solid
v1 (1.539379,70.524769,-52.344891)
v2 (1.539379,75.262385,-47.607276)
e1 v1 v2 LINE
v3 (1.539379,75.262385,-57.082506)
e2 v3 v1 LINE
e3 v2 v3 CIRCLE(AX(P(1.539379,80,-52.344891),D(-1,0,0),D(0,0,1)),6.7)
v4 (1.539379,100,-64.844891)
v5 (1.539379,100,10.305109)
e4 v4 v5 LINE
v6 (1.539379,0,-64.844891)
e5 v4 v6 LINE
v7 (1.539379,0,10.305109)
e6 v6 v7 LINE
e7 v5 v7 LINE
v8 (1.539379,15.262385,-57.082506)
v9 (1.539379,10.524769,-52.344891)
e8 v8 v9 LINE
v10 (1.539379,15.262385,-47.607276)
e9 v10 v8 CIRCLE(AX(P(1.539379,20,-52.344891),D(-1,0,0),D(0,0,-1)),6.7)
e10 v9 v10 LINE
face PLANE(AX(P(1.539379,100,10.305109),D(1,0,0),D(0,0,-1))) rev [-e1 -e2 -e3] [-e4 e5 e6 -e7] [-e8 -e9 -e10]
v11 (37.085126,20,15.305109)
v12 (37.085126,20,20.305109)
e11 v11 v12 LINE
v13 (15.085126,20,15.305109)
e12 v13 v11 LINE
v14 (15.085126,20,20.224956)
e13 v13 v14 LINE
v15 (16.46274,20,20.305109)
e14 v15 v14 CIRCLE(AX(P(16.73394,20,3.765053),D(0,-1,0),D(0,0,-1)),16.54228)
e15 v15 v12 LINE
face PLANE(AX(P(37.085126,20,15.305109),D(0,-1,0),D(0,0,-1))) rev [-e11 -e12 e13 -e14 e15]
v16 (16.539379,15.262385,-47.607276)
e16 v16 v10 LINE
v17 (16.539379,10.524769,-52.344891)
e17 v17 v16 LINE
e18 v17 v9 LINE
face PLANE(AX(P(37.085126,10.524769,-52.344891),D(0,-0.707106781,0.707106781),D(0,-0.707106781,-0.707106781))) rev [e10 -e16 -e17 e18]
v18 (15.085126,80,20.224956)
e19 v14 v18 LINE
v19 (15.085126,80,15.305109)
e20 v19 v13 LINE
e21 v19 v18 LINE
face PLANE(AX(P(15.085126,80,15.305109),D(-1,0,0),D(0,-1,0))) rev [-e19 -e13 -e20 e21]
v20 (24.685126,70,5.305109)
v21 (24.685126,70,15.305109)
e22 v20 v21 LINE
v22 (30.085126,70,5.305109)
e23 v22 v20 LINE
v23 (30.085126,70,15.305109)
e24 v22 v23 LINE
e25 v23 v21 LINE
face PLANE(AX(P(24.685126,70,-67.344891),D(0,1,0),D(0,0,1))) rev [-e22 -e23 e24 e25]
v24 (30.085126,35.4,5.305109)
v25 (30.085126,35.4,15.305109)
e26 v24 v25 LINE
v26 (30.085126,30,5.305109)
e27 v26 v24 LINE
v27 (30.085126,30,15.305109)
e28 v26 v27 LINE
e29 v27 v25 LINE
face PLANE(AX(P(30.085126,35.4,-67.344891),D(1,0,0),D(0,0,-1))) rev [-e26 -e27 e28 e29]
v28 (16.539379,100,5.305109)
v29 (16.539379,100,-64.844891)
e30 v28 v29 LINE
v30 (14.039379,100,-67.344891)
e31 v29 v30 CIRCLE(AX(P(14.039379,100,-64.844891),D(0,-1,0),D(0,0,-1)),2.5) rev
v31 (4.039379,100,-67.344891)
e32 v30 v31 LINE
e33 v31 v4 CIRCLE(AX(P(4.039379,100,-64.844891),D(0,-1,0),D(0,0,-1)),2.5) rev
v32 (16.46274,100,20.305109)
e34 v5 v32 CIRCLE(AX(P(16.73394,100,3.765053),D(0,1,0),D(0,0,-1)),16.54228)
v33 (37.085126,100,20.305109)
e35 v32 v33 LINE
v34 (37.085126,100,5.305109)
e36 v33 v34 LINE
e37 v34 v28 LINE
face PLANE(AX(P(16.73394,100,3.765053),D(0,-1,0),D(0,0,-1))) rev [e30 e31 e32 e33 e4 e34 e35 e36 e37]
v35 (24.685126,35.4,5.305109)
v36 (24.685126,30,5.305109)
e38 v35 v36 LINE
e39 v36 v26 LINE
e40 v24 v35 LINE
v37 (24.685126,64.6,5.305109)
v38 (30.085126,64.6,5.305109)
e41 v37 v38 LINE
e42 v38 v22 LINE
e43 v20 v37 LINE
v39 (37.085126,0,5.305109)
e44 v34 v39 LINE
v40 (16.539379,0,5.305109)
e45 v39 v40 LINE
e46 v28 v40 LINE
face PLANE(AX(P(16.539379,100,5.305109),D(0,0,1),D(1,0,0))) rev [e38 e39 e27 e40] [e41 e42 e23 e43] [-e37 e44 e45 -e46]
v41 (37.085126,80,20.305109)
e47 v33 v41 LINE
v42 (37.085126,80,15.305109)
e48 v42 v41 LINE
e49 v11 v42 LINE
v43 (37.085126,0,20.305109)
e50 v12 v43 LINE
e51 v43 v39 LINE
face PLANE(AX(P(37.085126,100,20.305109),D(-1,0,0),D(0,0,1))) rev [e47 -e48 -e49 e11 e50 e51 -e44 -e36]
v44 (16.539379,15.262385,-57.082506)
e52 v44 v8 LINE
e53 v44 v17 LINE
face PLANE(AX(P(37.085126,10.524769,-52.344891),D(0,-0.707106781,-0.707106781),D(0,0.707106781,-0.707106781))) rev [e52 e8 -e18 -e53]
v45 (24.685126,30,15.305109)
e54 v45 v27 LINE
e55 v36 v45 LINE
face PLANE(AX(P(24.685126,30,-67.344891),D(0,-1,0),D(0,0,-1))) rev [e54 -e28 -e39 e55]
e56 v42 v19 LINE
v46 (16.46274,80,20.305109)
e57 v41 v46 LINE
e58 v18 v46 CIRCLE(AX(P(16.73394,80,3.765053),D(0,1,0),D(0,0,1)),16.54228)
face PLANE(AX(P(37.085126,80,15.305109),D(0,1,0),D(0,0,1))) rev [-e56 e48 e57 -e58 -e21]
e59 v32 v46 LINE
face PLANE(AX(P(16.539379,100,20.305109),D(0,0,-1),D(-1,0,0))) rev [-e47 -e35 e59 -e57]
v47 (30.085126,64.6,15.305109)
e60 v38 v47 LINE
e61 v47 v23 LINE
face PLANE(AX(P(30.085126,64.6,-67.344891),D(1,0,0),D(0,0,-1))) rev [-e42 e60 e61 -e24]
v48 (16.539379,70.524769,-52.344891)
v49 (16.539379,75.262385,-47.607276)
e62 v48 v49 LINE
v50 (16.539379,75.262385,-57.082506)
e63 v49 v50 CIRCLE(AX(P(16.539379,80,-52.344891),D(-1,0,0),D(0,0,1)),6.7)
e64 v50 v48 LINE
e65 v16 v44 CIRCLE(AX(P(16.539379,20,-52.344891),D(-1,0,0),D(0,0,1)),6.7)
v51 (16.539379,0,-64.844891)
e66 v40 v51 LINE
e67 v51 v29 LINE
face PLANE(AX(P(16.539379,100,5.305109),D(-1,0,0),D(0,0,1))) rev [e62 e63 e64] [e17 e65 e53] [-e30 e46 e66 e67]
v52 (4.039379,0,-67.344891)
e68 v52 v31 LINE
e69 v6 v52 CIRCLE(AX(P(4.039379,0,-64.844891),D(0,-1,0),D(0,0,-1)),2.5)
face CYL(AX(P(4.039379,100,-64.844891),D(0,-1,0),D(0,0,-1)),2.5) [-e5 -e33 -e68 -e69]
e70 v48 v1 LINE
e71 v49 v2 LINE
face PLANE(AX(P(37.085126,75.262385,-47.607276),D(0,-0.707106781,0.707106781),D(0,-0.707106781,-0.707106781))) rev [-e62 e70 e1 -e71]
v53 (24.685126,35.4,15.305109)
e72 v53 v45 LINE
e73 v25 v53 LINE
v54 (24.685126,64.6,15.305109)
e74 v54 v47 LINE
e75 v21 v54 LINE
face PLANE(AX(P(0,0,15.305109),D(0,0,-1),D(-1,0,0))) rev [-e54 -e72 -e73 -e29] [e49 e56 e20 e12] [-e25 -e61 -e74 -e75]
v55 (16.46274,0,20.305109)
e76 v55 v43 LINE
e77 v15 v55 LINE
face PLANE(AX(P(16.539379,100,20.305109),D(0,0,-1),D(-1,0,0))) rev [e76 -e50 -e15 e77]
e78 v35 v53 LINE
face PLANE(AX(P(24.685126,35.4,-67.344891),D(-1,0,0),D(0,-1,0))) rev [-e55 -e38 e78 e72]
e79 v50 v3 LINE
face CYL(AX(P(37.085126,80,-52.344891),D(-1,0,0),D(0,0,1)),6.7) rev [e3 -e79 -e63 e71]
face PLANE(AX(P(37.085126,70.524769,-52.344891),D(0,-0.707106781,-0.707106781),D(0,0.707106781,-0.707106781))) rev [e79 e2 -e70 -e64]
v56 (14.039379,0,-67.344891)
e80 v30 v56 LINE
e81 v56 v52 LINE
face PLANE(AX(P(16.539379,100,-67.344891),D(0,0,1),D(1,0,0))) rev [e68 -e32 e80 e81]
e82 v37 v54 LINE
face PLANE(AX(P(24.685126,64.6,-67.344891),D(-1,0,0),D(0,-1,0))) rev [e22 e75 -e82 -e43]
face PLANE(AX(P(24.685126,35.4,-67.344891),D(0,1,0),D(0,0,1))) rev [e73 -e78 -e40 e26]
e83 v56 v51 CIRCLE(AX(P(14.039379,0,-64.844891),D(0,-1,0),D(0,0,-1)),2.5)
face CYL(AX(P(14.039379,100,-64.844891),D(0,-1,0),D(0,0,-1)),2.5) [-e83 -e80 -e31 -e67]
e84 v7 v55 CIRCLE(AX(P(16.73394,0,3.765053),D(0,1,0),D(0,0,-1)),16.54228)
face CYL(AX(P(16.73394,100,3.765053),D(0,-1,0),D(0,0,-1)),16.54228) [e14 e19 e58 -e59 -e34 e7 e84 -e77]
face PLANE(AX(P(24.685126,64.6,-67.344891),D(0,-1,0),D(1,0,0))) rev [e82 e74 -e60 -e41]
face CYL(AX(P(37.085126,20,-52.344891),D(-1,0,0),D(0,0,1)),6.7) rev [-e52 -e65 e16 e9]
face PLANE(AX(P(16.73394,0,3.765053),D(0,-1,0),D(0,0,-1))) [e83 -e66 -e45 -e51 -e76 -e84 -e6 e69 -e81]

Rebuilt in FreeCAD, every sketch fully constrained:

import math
import FreeCAD as App
import Part
import Sketcher

V = App.Vector
Q = App.Units.Quantity


def edges_at(feature, points):
    """Names of the edges that pass closest to the given points."""
    edges = feature.Shape.Edges
    near = lambda p: min(range(len(edges)), key=lambda i: edges[i].distToShape(Part.Vertex(*p))[0])
    return sorted({f"Edge{near(p) + 1}" for p in points})


def add_polygon(sketch, points):
    """Adds a closed chain of lines whose ends are joined by coincident constraints."""
    first, n = sketch.GeometryCount, len(points)
    for a, b in zip(points, points[1:] + points[:1]):
        sketch.addGeometry(Part.LineSegment(App.Vector(*a, 0), App.Vector(*b, 0)), False)
    for i in range(n):
        sketch.addConstraint(Sketcher.Constraint("Coincident", first + i, 2, first + (i + 1) % n, 1))

doc = App.newDocument("Part")
params = doc.addObject("Spreadsheet::Sheet", "Params")
for row, (alias, value) in enumerate([
    ("sketch1_width", "15 mm"),
    ("sketch1_height", "72.65 mm"),
    ("pad1_length", "100 mm"),
    ("sketch2_radius", "6.7 mm"),
    ("sketch3_width", "5.4 mm"),
    ("sketch4_width", "22 mm"),
    ("sketch4_height", "60 mm"),
    ("pocket3_length", "5 mm"),
    ("fillet_radius", "2.5 mm"),
], start=1):
    params.set(f"A{row}", alias)
    params.set(f"B{row}", "=" + value)
    params.setAlias(f"B{row}", alias)

body = doc.addObject("PartDesign::Body", "Body")

# Sketch on XZ plane
sketch1 = doc.addObject("Sketcher::SketchObject", "Sketch")
body.addObject(sketch1)
sketch1.AttachmentSupport = (doc.XZ_Plane, [""])
sketch1.MapMode = "FlatFace"
sketch1.addGeometry([
    Part.ArcOfCircle(Part.Circle(V(17, 4, 0), V(0, 0, 1), 17), math.radians(91), math.radians(157)),  # 0
    Part.LineSegment(V(16, 20, 0), V(37, 20, 0)),  # 1
    Part.LineSegment(V(37, 20, 0), V(37, 5, 0)),  # 2
    Part.LineSegment(V(37, 5, 0), V(17, 5, 0)),  # 3
    Part.LineSegment(V(17, 5, 0), V(17, -67, 0)),  # 4
    Part.LineSegment(V(17, -67, 0), V(2, -67, 0)),  # 5
    Part.LineSegment(V(2, -67, 0), V(2, 10, 0)),  # 6
], False)
sketch1.addConstraint([
    Sketcher.Constraint("Coincident", 0, 1, 1, 1),
    Sketcher.Constraint("Coincident", 1, 2, 2, 1),
    Sketcher.Constraint("Coincident", 2, 2, 3, 1),
    Sketcher.Constraint("Coincident", 3, 2, 4, 1),
    Sketcher.Constraint("Coincident", 4, 2, 5, 1),
    Sketcher.Constraint("Coincident", 5, 2, 6, 1),
    Sketcher.Constraint("Coincident", 6, 2, 0, 2),
    Sketcher.Constraint("Horizontal", 1),
    Sketcher.Constraint("Vertical", 2),
    Sketcher.Constraint("Horizontal", 3),
    Sketcher.Constraint("Vertical", 4),
    Sketcher.Constraint("Horizontal", 5),
    Sketcher.Constraint("Vertical", 6),
    Sketcher.Constraint("Equal", 5, 2),
    Sketcher.Constraint("DistanceX", 5, 2, 5, 1, Q("15 mm")),
    Sketcher.Constraint("DistanceY", 3, 2, 6, 2, Q("5 mm")),
    Sketcher.Constraint("DistanceY", 4, 2, 4, 1, Q("72.65 mm")),
    Sketcher.Constraint("Radius", 0, Q("16.54228 mm")),
    Sketcher.Constraint("DistanceX", 0, 1, 0, 3, Q("0.2712 mm")),
    Sketcher.Constraint("DistanceX", 1, 1, 1, 2, Q("20.622386 mm")),
    Sketcher.Constraint("DistanceX", -1, 1, 0, 3, Q("16.73394 mm")),
    Sketcher.Constraint("DistanceY", -1, 1, 0, 1, Q("20.305109 mm")),
])
sketch1.setExpression("Constraints[14]", "Params.sketch1_width")
sketch1.setExpression("Constraints[16]", "Params.sketch1_height")
pad1 = doc.addObject("PartDesign::Pad", "Pad")
body.addObject(pad1)
pad1.Profile = sketch1
pad1.setExpression("Length", "Params.pad1_length")
pad1.Reversed = True

# Sketch on YZ plane
sketch2 = doc.addObject("Sketcher::SketchObject", "Sketch001")
body.addObject(sketch2)
sketch2.AttachmentSupport = (doc.YZ_Plane, [""])
sketch2.MapMode = "FlatFace"
sketch2.AttachmentOffset = App.Placement(V(0, 0, 1.539379), App.Rotation())
sketch2.addGeometry([
    Part.LineSegment(V(71, -52, 0), V(75, -48, 0)),  # 0
    Part.ArcOfCircle(Part.Circle(V(80, -52, 0), V(0, 0, 1), 7), math.radians(-135), math.radians(135)),  # 1
    Part.LineSegment(V(75, -57, 0), V(71, -52, 0)),  # 2
    Part.LineSegment(V(11, -52, 0), V(15, -48, 0)),  # 3
    Part.ArcOfCircle(Part.Circle(V(20, -52, 0), V(0, 0, 1), 7), math.radians(-135), math.radians(135)),  # 4
    Part.LineSegment(V(15, -57, 0), V(11, -52, 0)),  # 5
], False)
sketch2.addConstraint([
    Sketcher.Constraint("Tangent", 0, 2, 1, 2),
    Sketcher.Constraint("Tangent", 1, 1, 2, 1),
    Sketcher.Constraint("Coincident", 2, 2, 0, 1),
    Sketcher.Constraint("Tangent", 3, 2, 4, 2),
    Sketcher.Constraint("Tangent", 4, 1, 5, 1),
    Sketcher.Constraint("Coincident", 5, 2, 3, 1),
    Sketcher.Constraint("Equal", 1, 4),
    Sketcher.Constraint("Perpendicular", 0, 2),
    Sketcher.Constraint("Perpendicular", 2, 3),
    Sketcher.Constraint("Perpendicular", 3, 5),
    Sketcher.Constraint("Horizontal", 1, 3, 4, 3),
    Sketcher.Constraint("Horizontal", 4, 3, 2, 2),
    Sketcher.Constraint("Radius", 1, Q("6.7 mm")),
    Sketcher.Constraint("DistanceX", -1, 1, 1, 3, Q("80 mm")),
    Sketcher.Constraint("DistanceX", -1, 1, 4, 3, Q("20 mm")),
    Sketcher.Constraint("DistanceY", 1, 3, -1, 1, Q("52.344891 mm")),
])
sketch2.setExpression("Constraints[12]", "Params.sketch2_radius")
pocket1 = doc.addObject("PartDesign::Pocket", "Pocket")
body.addObject(pocket1)
pocket1.Profile = sketch2
pocket1.Type = "ThroughAll"
pocket1.Reversed = True

# Sketch on XY plane
sketch3 = doc.addObject("Sketcher::SketchObject", "Sketch002")
body.addObject(sketch3)
sketch3.AttachmentSupport = (doc.XY_Plane, [""])
sketch3.MapMode = "FlatFace"
sketch3.AttachmentOffset = App.Placement(V(0, 0, 20.305109), App.Rotation())
add_polygon(sketch3, [(25, 35), (25, 30), (30, 30), (30, 35)])  # lines 0-3
add_polygon(sketch3, [(25, 70), (25, 65), (30, 65), (30, 70)])  # lines 4-7
sketch3.addConstraint([
    Sketcher.Constraint("Vertical", 0),
    Sketcher.Constraint("Horizontal", 1),
    Sketcher.Constraint("Vertical", 2),
    Sketcher.Constraint("Horizontal", 3),
    Sketcher.Constraint("Vertical", 4),
    Sketcher.Constraint("Horizontal", 5),
    Sketcher.Constraint("Vertical", 6),
    Sketcher.Constraint("Horizontal", 7),
    Sketcher.Constraint("Vertical", 3, 2, 4, 2),
    Sketcher.Constraint("Vertical", 2, 2, 5, 2),
    Sketcher.Constraint("Equal", 7, 0),
    Sketcher.Constraint("Equal", 2, 4),
    Sketcher.Constraint("DistanceX", 1, 1, 1, 2, Q("5.4 mm")),
    Sketcher.Constraint("DistanceY", -1, 1, 0, 2, Q("30 mm")),
    Sketcher.Constraint("DistanceY", -1, 1, 6, 2, Q("70 mm")),
    Sketcher.Constraint("DistanceX", -1, 1, 0, 2, Q("24.685126 mm")),
])
sketch3.setExpression("Constraints[20]", "Params.sketch3_width")
pocket2 = doc.addObject("PartDesign::Pocket", "Pocket001")
body.addObject(pocket2)
pocket2.Profile = sketch3
pocket2.Type = "ThroughAll"

# Sketch on XY plane
sketch4 = doc.addObject("Sketcher::SketchObject", "Sketch003")
body.addObject(sketch4)
sketch4.AttachmentSupport = (doc.XY_Plane, [""])
sketch4.MapMode = "FlatFace"
sketch4.AttachmentOffset = App.Placement(V(0, 0, 20.305109), App.Rotation())
add_polygon(sketch4, [(15, 80), (15, 20), (37, 20), (37, 80)])  # lines 0-3
sketch4.addConstraint([
    Sketcher.Constraint("Vertical", 0),
    Sketcher.Constraint("Horizontal", 1),
    Sketcher.Constraint("Vertical", 2),
    Sketcher.Constraint("Horizontal", 3),
    Sketcher.Constraint("DistanceX", 1, 1, 1, 2, Q("22 mm")),
    Sketcher.Constraint("DistanceY", 0, 2, 0, 1, Q("60 mm")),
    Sketcher.Constraint("DistanceY", -1, 1, 0, 2, Q("20 mm")),
    Sketcher.Constraint("DistanceX", -1, 1, 0, 2, Q("15.085126 mm")),
])
sketch4.setExpression("Constraints[8]", "Params.sketch4_width")
sketch4.setExpression("Constraints[9]", "Params.sketch4_height")
pocket3 = doc.addObject("PartDesign::Pocket", "Pocket002")
body.addObject(pocket3)
pocket3.Profile = sketch4
pocket3.setExpression("Length", "Params.pocket3_length")
doc.recompute()

fillet = doc.addObject("PartDesign::Fillet", "Fillet")
body.addObject(fillet)
fillet.Base = (pocket3, edges_at(pocket3, [(1.539, 50, -67.345), (16.539, 50, -67.345)]))
fillet.setExpression("Radius", "Params.fillet_radius")

doc.recompute()
